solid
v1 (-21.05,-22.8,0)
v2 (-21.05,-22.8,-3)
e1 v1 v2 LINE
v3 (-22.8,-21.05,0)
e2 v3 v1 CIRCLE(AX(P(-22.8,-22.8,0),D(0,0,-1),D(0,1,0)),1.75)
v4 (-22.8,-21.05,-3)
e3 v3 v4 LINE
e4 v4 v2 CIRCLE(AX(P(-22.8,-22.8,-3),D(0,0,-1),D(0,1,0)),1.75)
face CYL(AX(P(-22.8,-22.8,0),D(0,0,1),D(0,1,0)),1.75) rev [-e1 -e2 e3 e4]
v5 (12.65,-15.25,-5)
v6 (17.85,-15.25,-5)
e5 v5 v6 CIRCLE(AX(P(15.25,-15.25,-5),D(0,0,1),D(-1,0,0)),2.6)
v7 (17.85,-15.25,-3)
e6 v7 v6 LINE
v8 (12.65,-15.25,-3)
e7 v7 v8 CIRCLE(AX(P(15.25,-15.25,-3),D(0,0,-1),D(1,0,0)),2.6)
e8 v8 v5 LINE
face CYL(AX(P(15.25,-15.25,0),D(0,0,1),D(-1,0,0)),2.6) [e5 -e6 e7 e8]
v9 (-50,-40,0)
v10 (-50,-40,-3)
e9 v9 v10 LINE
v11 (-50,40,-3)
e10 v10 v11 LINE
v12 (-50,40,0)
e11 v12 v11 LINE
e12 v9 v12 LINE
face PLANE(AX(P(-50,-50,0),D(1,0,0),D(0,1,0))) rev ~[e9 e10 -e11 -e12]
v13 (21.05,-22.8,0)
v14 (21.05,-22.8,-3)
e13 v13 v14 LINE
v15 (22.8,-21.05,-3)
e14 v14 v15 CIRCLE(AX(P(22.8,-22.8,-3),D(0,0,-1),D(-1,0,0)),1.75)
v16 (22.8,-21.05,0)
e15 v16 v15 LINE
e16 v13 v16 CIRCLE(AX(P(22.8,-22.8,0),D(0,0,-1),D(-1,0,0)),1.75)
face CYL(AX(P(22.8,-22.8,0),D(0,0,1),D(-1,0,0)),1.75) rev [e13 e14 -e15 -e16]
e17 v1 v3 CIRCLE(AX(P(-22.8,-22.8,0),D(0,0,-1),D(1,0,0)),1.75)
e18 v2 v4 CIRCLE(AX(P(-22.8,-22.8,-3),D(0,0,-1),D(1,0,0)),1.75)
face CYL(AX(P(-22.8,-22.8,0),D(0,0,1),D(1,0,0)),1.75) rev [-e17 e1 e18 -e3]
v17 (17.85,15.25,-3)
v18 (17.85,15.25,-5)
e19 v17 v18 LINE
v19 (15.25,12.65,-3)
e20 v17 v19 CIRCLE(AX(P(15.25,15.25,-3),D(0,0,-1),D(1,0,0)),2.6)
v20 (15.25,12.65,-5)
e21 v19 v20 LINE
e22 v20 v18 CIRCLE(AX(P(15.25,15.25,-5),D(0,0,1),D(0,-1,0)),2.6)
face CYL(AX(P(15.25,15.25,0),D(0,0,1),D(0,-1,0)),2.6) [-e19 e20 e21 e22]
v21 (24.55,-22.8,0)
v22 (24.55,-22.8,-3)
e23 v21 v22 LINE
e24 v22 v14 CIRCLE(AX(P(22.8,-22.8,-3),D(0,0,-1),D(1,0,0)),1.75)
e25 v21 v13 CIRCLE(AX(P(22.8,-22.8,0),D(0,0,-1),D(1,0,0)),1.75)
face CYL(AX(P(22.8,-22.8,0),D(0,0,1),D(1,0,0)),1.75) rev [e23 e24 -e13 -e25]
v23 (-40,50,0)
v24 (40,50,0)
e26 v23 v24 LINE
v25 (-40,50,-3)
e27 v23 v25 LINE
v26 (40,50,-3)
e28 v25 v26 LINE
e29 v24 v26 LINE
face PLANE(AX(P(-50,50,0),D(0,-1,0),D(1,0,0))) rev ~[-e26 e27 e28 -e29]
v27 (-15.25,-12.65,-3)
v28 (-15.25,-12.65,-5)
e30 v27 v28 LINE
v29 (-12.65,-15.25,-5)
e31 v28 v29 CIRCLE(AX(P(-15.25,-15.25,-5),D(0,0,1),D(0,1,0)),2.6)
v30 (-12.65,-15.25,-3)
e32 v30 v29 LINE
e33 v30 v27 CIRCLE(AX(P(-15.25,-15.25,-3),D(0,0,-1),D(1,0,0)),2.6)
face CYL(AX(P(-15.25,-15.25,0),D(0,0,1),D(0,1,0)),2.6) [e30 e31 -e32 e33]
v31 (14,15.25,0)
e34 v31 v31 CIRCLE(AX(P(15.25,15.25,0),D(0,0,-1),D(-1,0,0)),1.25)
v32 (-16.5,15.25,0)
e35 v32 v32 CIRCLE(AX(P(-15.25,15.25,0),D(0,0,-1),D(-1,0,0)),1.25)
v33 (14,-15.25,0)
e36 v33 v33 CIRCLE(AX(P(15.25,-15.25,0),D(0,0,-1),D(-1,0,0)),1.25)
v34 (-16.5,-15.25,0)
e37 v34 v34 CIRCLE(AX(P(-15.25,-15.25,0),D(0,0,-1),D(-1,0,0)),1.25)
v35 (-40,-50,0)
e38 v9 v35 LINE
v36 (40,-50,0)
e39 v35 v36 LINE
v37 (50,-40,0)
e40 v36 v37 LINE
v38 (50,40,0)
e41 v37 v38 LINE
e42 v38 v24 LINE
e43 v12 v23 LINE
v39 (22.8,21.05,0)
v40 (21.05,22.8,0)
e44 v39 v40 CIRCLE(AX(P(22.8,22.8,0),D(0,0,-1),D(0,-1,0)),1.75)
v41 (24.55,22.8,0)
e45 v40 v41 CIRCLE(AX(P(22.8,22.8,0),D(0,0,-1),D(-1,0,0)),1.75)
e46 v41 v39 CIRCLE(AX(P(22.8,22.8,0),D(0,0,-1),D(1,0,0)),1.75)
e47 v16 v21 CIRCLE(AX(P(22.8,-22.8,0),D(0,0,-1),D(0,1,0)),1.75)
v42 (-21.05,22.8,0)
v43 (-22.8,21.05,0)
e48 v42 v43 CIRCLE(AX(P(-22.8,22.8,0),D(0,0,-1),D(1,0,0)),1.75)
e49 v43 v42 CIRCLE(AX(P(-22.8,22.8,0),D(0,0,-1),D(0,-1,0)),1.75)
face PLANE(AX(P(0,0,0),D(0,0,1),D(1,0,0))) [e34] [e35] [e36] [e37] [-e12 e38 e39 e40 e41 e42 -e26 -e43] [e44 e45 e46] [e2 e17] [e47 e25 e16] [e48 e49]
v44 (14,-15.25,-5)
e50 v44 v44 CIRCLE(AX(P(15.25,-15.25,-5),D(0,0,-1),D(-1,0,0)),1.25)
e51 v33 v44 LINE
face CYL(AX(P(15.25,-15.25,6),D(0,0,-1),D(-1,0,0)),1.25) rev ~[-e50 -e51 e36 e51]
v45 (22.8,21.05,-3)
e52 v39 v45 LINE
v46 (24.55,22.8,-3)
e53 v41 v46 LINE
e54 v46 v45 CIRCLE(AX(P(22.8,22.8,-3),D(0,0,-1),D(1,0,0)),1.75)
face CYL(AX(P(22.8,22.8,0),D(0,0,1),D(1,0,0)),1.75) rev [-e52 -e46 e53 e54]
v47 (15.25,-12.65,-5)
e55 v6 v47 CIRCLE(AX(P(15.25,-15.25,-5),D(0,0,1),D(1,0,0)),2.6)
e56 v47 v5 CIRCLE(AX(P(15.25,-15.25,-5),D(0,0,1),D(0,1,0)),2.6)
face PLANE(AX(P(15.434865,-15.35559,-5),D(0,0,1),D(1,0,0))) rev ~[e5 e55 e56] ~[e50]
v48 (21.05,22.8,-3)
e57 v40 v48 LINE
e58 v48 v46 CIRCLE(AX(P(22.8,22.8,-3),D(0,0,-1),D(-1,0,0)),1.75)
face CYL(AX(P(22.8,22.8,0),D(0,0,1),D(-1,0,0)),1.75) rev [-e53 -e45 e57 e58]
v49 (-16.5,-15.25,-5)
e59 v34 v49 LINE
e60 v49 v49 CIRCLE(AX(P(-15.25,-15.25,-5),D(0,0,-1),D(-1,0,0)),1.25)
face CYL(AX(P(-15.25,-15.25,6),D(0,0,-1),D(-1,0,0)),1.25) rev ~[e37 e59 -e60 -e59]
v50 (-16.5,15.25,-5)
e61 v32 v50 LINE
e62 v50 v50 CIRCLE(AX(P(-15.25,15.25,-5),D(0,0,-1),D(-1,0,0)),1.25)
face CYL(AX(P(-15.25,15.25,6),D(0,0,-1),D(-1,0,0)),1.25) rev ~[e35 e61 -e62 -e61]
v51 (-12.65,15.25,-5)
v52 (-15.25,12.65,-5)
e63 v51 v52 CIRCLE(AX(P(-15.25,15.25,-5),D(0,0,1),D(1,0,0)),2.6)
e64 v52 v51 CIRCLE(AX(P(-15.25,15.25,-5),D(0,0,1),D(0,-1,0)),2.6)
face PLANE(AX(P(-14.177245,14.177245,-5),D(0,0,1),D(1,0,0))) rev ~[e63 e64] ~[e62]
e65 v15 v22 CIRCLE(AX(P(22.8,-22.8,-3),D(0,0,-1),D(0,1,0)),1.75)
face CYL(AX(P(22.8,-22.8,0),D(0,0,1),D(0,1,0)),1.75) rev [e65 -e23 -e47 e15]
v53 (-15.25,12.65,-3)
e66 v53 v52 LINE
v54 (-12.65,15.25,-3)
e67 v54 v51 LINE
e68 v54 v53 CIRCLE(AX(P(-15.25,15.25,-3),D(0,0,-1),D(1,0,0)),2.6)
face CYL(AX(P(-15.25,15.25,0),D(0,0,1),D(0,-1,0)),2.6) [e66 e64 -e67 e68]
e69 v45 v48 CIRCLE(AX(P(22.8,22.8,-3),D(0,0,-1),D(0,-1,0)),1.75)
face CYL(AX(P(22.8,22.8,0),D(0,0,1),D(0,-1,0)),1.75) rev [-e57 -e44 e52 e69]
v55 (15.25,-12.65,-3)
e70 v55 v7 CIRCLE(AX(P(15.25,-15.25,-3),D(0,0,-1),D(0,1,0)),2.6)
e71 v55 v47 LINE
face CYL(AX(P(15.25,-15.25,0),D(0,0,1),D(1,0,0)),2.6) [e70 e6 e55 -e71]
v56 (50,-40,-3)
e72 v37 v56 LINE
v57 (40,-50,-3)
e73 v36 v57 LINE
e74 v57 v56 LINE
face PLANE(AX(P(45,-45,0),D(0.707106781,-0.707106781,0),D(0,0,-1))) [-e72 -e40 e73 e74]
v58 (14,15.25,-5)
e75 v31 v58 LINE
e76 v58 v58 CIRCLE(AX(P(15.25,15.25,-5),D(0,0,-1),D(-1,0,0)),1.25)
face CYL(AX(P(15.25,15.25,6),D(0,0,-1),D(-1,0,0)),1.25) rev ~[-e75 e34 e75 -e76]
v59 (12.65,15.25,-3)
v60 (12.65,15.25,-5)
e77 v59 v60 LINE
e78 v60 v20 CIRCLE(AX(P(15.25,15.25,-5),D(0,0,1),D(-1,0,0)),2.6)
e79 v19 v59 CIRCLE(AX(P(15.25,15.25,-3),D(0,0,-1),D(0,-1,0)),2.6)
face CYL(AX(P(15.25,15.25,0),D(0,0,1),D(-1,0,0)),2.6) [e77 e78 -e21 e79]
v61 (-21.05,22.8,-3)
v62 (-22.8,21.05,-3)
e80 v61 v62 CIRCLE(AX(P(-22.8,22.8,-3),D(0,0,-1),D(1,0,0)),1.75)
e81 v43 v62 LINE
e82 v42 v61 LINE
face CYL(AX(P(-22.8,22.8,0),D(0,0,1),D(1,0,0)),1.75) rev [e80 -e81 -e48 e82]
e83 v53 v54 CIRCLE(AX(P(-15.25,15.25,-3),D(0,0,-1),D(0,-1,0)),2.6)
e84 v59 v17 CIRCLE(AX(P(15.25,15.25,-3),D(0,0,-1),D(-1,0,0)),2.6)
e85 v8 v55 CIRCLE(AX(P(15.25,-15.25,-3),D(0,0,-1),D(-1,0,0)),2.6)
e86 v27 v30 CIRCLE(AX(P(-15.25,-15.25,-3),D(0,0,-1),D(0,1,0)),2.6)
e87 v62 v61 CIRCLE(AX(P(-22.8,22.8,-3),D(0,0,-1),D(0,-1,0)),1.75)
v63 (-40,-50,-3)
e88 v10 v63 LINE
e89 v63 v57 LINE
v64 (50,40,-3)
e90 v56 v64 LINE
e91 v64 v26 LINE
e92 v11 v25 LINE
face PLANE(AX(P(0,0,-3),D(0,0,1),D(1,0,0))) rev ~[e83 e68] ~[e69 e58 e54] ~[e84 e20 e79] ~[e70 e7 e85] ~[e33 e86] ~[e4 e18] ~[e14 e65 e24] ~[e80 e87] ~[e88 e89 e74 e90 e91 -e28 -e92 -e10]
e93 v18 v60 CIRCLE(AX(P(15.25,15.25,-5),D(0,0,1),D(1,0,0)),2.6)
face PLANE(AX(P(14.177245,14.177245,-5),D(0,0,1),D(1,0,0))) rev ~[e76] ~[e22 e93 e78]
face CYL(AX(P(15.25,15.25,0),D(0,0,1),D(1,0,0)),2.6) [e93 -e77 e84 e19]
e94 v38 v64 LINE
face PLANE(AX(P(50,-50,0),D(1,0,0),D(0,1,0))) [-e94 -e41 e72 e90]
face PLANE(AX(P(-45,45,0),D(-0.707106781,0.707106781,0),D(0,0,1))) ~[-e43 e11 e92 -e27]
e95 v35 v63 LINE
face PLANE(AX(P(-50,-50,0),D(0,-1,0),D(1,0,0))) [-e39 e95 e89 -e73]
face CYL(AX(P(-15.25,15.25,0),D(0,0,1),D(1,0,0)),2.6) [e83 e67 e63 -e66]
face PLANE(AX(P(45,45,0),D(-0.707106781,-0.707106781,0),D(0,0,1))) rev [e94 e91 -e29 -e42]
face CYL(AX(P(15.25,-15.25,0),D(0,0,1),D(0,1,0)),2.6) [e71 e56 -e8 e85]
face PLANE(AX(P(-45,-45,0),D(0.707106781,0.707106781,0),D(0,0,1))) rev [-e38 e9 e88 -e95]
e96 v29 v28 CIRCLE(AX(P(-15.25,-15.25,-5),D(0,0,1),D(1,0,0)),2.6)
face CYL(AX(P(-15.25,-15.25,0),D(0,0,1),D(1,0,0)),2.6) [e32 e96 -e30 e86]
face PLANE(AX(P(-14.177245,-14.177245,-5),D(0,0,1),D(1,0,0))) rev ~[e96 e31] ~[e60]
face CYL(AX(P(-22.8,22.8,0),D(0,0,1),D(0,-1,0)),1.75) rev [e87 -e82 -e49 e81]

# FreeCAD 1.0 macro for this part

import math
import FreeCAD as App
import Part
import Sketcher

V = App.Vector


def edges_at(feature, points):
    """Names of the edges that pass closest to the given points."""
    edges = feature.Shape.Edges
    near = lambda p: min(range(len(edges)), key=lambda i: edges[i].distToShape(Part.Vertex(*p))[0])
    return sorted({f"Edge{near(p) + 1}" for p in points})

doc = App.newDocument("Part")
body = doc.addObject("PartDesign::Body", "Body")

# Sketch on XY plane
sketch1 = body.newObject("Sketcher::SketchObject", "Sketch")
sketch1.AttachmentSupport = (doc.getObject("XY_Plane"), [""])
sketch1.MapMode = "FlatFace"
sketch1.addGeometry([
    Part.LineSegment(V(-50, 50, 0), V(-50, -50, 0)),  # 0
    Part.LineSegment(V(-50, -50, 0), V(50, -50, 0)),  # 1
    Part.LineSegment(V(50, -50, 0), V(50, 50, 0)),  # 2
    Part.LineSegment(V(50, 50, 0), V(-50, 50, 0)),  # 3
    Part.ArcOfCircle(Part.Circle(V(-22.8, -22.8, 0), V(0, 0, 1), 1.8), math.radians(90), math.radians(360)),  # 4
    Part.ArcOfCircle(Part.Circle(V(-22.8, -22.8, 0), V(0, 0, 1), 1.8), math.radians(0), math.radians(90)),  # 5
    Part.ArcOfCircle(Part.Circle(V(22.8, -22.8, 0), V(0, 0, 1), 1.8), math.radians(180), math.radians(360)),  # 6
    Part.ArcOfCircle(Part.Circle(V(22.8, -22.8, 0), V(0, 0, 1), 1.8), math.radians(90), math.radians(180)),  # 7
    Part.ArcOfCircle(Part.Circle(V(22.8, -22.8, 0), V(0, 0, 1), 1.8), math.radians(0), math.radians(90)),  # 8
    Part.ArcOfCircle(Part.Circle(V(-22.8, 22.8, 0), V(0, 0, 1), 1.8), math.radians(0), math.radians(270)),  # 9
    Part.ArcOfCircle(Part.Circle(V(-22.8, 22.8, 0), V(0, 0, 1), 1.8), math.radians(-90), math.radians(0)),  # 10
    Part.ArcOfCircle(Part.Circle(V(15.2, -15.2, 0), V(0, 0, 1), 2.6), math.radians(180), math.radians(360)),  # 11
    Part.ArcOfCircle(Part.Circle(V(15.2, -15.2, 0), V(0, 0, 1), 2.6), math.radians(90), math.radians(180)),  # 12
    Part.ArcOfCircle(Part.Circle(V(15.2, -15.2, 0), V(0, 0, 1), 2.6), math.radians(0), math.radians(90)),  # 13
    Part.ArcOfCircle(Part.Circle(V(15.2, 15.2, 0), V(0, 0, 1), 2.6), math.radians(-90), math.radians(0)),  # 14
    Part.ArcOfCircle(Part.Circle(V(15.2, 15.2, 0), V(0, 0, 1), 2.6), math.radians(180), math.radians(270)),  # 15
    Part.ArcOfCircle(Part.Circle(V(15.2, 15.2, 0), V(0, 0, 1), 2.6), math.radians(0), math.radians(180)),  # 16
    Part.ArcOfCircle(Part.Circle(V(-15.2, 15.2, 0), V(0, 0, 1), 2.6), math.radians(0), math.radians(270)),  # 17
    Part.ArcOfCircle(Part.Circle(V(-15.2, 15.2, 0), V(0, 0, 1), 2.6), math.radians(-90), math.radians(0)),  # 18
    Part.ArcOfCircle(Part.Circle(V(-15.2, -15.2, 0), V(0, 0, 1), 2.6), math.radians(90), math.radians(360)),  # 19
    Part.ArcOfCircle(Part.Circle(V(-15.2, -15.2, 0), V(0, 0, 1), 2.6), math.radians(0), math.radians(90)),  # 20
    Part.ArcOfCircle(Part.Circle(V(22.8, 22.8, 0), V(0, 0, 1), 1.8), math.radians(-90), math.radians(0)),  # 21
    Part.ArcOfCircle(Part.Circle(V(22.8, 22.8, 0), V(0, 0, 1), 1.8), math.radians(180), math.radians(270)),  # 22
    Part.ArcOfCircle(Part.Circle(V(22.8, 22.8, 0), V(0, 0, 1), 1.8), math.radians(0), math.radians(180)),  # 23
], False)
sketch1.addConstraint([
    Sketcher.Constraint("Coincident", 0, 2, 1, 1),
    Sketcher.Constraint("Coincident", 1, 2, 2, 1),
    Sketcher.Constraint("Coincident", 2, 2, 3, 1),
    Sketcher.Constraint("Coincident", 3, 2, 0, 1),
    Sketcher.Constraint("Tangent", 4, 1, 5, 2),
    Sketcher.Constraint("Coincident", 5, 1, 4, 2),
    Sketcher.Constraint("Tangent", 6, 1, 7, 2),
    Sketcher.Constraint("Tangent", 7, 1, 8, 2),
    Sketcher.Constraint("Tangent", 8, 1, 6, 2),
    Sketcher.Constraint("Tangent", 9, 1, 10, 2),
    Sketcher.Constraint("Coincident", 10, 1, 9, 2),
    Sketcher.Constraint("Tangent", 11, 1, 12, 2),
    Sketcher.Constraint("Tangent", 12, 1, 13, 2),
    Sketcher.Constraint("Tangent", 13, 1, 11, 2),
    Sketcher.Constraint("Tangent", 14, 1, 15, 2),
    Sketcher.Constraint("Tangent", 15, 1, 16, 2),
    Sketcher.Constraint("Tangent", 16, 1, 14, 2),
    Sketcher.Constraint("Tangent", 17, 1, 18, 2),
    Sketcher.Constraint("Coincident", 18, 1, 17, 2),
    Sketcher.Constraint("Tangent", 19, 1, 20, 2),
    Sketcher.Constraint("Coincident", 20, 1, 19, 2),
    Sketcher.Constraint("Tangent", 21, 1, 22, 2),
    Sketcher.Constraint("Tangent", 22, 1, 23, 2),
    Sketcher.Constraint("Tangent", 23, 1, 21, 2),
    Sketcher.Constraint("Vertical", 0),
    Sketcher.Constraint("Horizontal", 1),
    Sketcher.Constraint("Vertical", 2),
    Sketcher.Constraint("Horizontal", 3),
    Sketcher.Constraint("Equal", 5, 6),
    Sketcher.Constraint("Equal", 8, 9),
    Sketcher.Constraint("Equal", 13, 14),
    Sketcher.Constraint("Equal", 16, 17),
    Sketcher.Constraint("Equal", 18, 19),
    Sketcher.Constraint("Equal", 10, 21),
    Sketcher.Constraint("Symmetric", 6, 3, 9, 3, -1, 1),
    Sketcher.Constraint("Symmetric", 11, 3, 17, 3, -1, 1),
    Sketcher.Constraint("Symmetric", 14, 3, 19, 3, -1, 1),
    Sketcher.Constraint("Symmetric", 4, 3, 21, 3, -1, 1),
    Sketcher.Constraint("Symmetric", 0, 2, 2, 2, -1, 1),
    Sketcher.Constraint("Symmetric", 4, 3, 6, 3, -2),
    Sketcher.Constraint("Symmetric", 14, 3, 17, 3, -2),
    Sketcher.Constraint("Horizontal", 8, 3, 5, 1),
    Sketcher.Constraint("Horizontal", 5, 1, 6, 1),
    Sketcher.Constraint("Horizontal", 6, 1, 8, 1),
    Sketcher.Constraint("Horizontal", 23, 3, 9, 1),
    Sketcher.Constraint("Horizontal", 20, 3, 11, 1),
    Sketcher.Constraint("Horizontal", 11, 1, 13, 1),
    Sketcher.Constraint("Horizontal", 18, 3, 15, 1),
    Sketcher.Constraint("Horizontal", 15, 1, 16, 1),
    Sketcher.Constraint("Horizontal", 16, 1, 17, 1),
    Sketcher.Constraint("Horizontal", 13, 1, 20, 1),
    Sketcher.Constraint("Horizontal", 9, 1, 22, 1),
    Sketcher.Constraint("Horizontal", 22, 1, 23, 1),
    Sketcher.Constraint("Vertical", 10, 3, 4, 1),
    Sketcher.Constraint("Vertical", 23, 3, 7, 1),
    Sketcher.Constraint("Vertical", 4, 1, 10, 1),
    Sketcher.Constraint("Vertical", 16, 3, 12, 1),
    Sketcher.Constraint("Vertical", 12, 1, 14, 1),
    Sketcher.Constraint("Vertical", 20, 3, 18, 1),
    Sketcher.Constraint("Vertical", 18, 1, 19, 1),
    Sketcher.Constraint("Vertical", 7, 1, 21, 1),
    Sketcher.Constraint("Equal", 3, 0),
    Sketcher.Constraint("Radius", 11, 2.6),
    Sketcher.Constraint("DistanceX", 1, 1, 1, 2, 100.0),
    Sketcher.Constraint("Radius", 4, 1.75),
    Sketcher.Constraint("DistanceX", 4, 3, -1, 1, 22.8),
    Sketcher.Constraint("DistanceY", 4, 3, -1, 1, 22.8),
    Sketcher.Constraint("DistanceY", 11, 3, 14, 3, 30.5),
    Sketcher.Constraint("DistanceX", 17, 3, 14, 3, 30.5),
])
pad1 = body.newObject("PartDesign::Pad", "Pad")
pad1.Profile = sketch1
pad1.Length = 3
pad1.Reversed = True

# Sketch on XY plane
sketch2 = body.newObject("Sketcher::SketchObject", "Sketch001")
sketch2.AttachmentSupport = (doc.getObject("XY_Plane"), [""])
sketch2.MapMode = "FlatFace"
sketch2.addGeometry([
    Part.ArcOfCircle(Part.Circle(V(-15.2, -15.2, 0), V(0, 0, 1), 2.6), math.radians(0), math.radians(90)),  # 0
    Part.ArcOfCircle(Part.Circle(V(-15.2, -15.2, 0), V(0, 0, 1), 2.6), math.radians(90), math.radians(360)),  # 1
    Part.ArcOfCircle(Part.Circle(V(15.2, -15.2, 0), V(0, 0, 1), 2.6), math.radians(180), math.radians(360)),  # 2
    Part.ArcOfCircle(Part.Circle(V(15.2, -15.2, 0), V(0, 0, 1), 2.6), math.radians(0), math.radians(90)),  # 3
    Part.ArcOfCircle(Part.Circle(V(15.2, -15.2, 0), V(0, 0, 1), 2.6), math.radians(90), math.radians(180)),  # 4
    Part.ArcOfCircle(Part.Circle(V(-15.2, 15.2, 0), V(0, 0, 1), 2.6), math.radians(-90), math.radians(0)),  # 5
    Part.ArcOfCircle(Part.Circle(V(-15.2, 15.2, 0), V(0, 0, 1), 2.6), math.radians(0), math.radians(270)),  # 6
    Part.ArcOfCircle(Part.Circle(V(15.2, 15.2, 0), V(0, 0, 1), 2.6), math.radians(180), math.radians(270)),  # 7
    Part.ArcOfCircle(Part.Circle(V(15.2, 15.2, 0), V(0, 0, 1), 2.6), math.radians(-90), math.radians(0)),  # 8
    Part.ArcOfCircle(Part.Circle(V(15.2, 15.2, 0), V(0, 0, 1), 2.6), math.radians(0), math.radians(180)),  # 9
], False)
sketch2.addConstraint([
    Sketcher.Constraint("Tangent", 0, 1, 1, 2),
    Sketcher.Constraint("Coincident", 1, 1, 0, 2),
    Sketcher.Constraint("Tangent", 2, 2, 3, 1),
    Sketcher.Constraint("Tangent", 3, 2, 4, 1),
    Sketcher.Constraint("Tangent", 4, 2, 2, 1),
    Sketcher.Constraint("Tangent", 5, 1, 6, 2),
    Sketcher.Constraint("Coincident", 6, 1, 5, 2),
    Sketcher.Constraint("Tangent", 7, 2, 8, 1),
    Sketcher.Constraint("Tangent", 8, 2, 9, 1),
    Sketcher.Constraint("Tangent", 9, 2, 7, 1),
    Sketcher.Constraint("Equal", 1, 2),
    Sketcher.Constraint("Equal", 4, 5),
    Sketcher.Constraint("Equal", 6, 7),
    Sketcher.Constraint("Symmetric", 2, 3, 5, 3, -1, 1),
    Sketcher.Constraint("Symmetric", 0, 3, 7, 3, -1, 1),
    Sketcher.Constraint("Symmetric", 0, 3, 2, 3, -2),
    Sketcher.Constraint("Horizontal", 4, 3, 0, 1),
    Sketcher.Constraint("Horizontal", 0, 1, 2, 2),
    Sketcher.Constraint("Horizontal", 2, 2, 4, 2),
    Sketcher.Constraint("Horizontal", 9, 3, 6, 1),
    Sketcher.Constraint("Horizontal", 6, 1, 8, 2),
    Sketcher.Constraint("Horizontal", 8, 2, 9, 2),
    Sketcher.Constraint("Vertical", 6, 3, 1, 1),
    Sketcher.Constraint("Vertical", 9, 3, 3, 2),
    Sketcher.Constraint("Vertical", 1, 1, 5, 1),
    Sketcher.Constraint("Vertical", 3, 2, 7, 2),
    Sketcher.Constraint("Radius", 0, 2.6),
    Sketcher.Constraint("DistanceX", 0, 3, 2, 3, 30.5),
    Sketcher.Constraint("DistanceY", 0, 3, 5, 3, 30.5),
])
pad2 = body.newObject("PartDesign::Pad", "Pad001")
pad2.Profile = sketch2
pad2.Length = 5
pad2.Reversed = True

# Sketch on XY plane
sketch3 = body.newObject("Sketcher::SketchObject", "Sketch002")
sketch3.AttachmentSupport = (doc.getObject("XY_Plane"), [""])
sketch3.MapMode = "FlatFace"
sketch3.addGeometry([
    Part.Circle(V(-15.2, -15.2, 0), V(0, 0, 1), 1.2),
    Part.Circle(V(-15.2, 15.2, 0), V(0, 0, 1), 1.2),
    Part.Circle(V(15.2, 15.2, 0), V(0, 0, 1), 1.2),
    Part.Circle(V(15.2, -15.2, 0), V(0, 0, 1), 1.2),
], False)
sketch3.addConstraint([
    Sketcher.Constraint("Equal", 0, 1),
    Sketcher.Constraint("Equal", 1, 2),
    Sketcher.Constraint("Equal", 2, 3),
    Sketcher.Constraint("Symmetric", 0, 3, 2, 3, -1, 1),
    Sketcher.Constraint("Symmetric", 1, 3, 3, 3, -1, 1),
    Sketcher.Constraint("Symmetric", 1, 3, 2, 3, -2),
    Sketcher.Constraint("Diameter", 0, 2.5),
    Sketcher.Constraint("DistanceY", 0, 3, 1, 3, 30.5),
    Sketcher.Constraint("DistanceX", 1, 3, 2, 3, 30.5),
])
doc.recompute()
hole = body.newObject("PartDesign::Hole", "Hole")
hole.Profile = sketch3
hole.ThreadType = "None"
hole.Diameter = 2.5
hole.DepthType = "Dimension"
hole.Depth = 6
hole.DrillPoint = "Angled"
hole.DrillPointAngle = 118
doc.recompute()

chamfer = body.newObject("PartDesign::Chamfer", "Chamfer")
chamfer.Base = (hole, edges_at(hole, [
    (-50, 50, -1.5),
    (50, 50, -1.5),
    (50, -50, -1.5),
    (-50, -50, -1.5),
]))
chamfer.Size = 10

doc.recompute()
